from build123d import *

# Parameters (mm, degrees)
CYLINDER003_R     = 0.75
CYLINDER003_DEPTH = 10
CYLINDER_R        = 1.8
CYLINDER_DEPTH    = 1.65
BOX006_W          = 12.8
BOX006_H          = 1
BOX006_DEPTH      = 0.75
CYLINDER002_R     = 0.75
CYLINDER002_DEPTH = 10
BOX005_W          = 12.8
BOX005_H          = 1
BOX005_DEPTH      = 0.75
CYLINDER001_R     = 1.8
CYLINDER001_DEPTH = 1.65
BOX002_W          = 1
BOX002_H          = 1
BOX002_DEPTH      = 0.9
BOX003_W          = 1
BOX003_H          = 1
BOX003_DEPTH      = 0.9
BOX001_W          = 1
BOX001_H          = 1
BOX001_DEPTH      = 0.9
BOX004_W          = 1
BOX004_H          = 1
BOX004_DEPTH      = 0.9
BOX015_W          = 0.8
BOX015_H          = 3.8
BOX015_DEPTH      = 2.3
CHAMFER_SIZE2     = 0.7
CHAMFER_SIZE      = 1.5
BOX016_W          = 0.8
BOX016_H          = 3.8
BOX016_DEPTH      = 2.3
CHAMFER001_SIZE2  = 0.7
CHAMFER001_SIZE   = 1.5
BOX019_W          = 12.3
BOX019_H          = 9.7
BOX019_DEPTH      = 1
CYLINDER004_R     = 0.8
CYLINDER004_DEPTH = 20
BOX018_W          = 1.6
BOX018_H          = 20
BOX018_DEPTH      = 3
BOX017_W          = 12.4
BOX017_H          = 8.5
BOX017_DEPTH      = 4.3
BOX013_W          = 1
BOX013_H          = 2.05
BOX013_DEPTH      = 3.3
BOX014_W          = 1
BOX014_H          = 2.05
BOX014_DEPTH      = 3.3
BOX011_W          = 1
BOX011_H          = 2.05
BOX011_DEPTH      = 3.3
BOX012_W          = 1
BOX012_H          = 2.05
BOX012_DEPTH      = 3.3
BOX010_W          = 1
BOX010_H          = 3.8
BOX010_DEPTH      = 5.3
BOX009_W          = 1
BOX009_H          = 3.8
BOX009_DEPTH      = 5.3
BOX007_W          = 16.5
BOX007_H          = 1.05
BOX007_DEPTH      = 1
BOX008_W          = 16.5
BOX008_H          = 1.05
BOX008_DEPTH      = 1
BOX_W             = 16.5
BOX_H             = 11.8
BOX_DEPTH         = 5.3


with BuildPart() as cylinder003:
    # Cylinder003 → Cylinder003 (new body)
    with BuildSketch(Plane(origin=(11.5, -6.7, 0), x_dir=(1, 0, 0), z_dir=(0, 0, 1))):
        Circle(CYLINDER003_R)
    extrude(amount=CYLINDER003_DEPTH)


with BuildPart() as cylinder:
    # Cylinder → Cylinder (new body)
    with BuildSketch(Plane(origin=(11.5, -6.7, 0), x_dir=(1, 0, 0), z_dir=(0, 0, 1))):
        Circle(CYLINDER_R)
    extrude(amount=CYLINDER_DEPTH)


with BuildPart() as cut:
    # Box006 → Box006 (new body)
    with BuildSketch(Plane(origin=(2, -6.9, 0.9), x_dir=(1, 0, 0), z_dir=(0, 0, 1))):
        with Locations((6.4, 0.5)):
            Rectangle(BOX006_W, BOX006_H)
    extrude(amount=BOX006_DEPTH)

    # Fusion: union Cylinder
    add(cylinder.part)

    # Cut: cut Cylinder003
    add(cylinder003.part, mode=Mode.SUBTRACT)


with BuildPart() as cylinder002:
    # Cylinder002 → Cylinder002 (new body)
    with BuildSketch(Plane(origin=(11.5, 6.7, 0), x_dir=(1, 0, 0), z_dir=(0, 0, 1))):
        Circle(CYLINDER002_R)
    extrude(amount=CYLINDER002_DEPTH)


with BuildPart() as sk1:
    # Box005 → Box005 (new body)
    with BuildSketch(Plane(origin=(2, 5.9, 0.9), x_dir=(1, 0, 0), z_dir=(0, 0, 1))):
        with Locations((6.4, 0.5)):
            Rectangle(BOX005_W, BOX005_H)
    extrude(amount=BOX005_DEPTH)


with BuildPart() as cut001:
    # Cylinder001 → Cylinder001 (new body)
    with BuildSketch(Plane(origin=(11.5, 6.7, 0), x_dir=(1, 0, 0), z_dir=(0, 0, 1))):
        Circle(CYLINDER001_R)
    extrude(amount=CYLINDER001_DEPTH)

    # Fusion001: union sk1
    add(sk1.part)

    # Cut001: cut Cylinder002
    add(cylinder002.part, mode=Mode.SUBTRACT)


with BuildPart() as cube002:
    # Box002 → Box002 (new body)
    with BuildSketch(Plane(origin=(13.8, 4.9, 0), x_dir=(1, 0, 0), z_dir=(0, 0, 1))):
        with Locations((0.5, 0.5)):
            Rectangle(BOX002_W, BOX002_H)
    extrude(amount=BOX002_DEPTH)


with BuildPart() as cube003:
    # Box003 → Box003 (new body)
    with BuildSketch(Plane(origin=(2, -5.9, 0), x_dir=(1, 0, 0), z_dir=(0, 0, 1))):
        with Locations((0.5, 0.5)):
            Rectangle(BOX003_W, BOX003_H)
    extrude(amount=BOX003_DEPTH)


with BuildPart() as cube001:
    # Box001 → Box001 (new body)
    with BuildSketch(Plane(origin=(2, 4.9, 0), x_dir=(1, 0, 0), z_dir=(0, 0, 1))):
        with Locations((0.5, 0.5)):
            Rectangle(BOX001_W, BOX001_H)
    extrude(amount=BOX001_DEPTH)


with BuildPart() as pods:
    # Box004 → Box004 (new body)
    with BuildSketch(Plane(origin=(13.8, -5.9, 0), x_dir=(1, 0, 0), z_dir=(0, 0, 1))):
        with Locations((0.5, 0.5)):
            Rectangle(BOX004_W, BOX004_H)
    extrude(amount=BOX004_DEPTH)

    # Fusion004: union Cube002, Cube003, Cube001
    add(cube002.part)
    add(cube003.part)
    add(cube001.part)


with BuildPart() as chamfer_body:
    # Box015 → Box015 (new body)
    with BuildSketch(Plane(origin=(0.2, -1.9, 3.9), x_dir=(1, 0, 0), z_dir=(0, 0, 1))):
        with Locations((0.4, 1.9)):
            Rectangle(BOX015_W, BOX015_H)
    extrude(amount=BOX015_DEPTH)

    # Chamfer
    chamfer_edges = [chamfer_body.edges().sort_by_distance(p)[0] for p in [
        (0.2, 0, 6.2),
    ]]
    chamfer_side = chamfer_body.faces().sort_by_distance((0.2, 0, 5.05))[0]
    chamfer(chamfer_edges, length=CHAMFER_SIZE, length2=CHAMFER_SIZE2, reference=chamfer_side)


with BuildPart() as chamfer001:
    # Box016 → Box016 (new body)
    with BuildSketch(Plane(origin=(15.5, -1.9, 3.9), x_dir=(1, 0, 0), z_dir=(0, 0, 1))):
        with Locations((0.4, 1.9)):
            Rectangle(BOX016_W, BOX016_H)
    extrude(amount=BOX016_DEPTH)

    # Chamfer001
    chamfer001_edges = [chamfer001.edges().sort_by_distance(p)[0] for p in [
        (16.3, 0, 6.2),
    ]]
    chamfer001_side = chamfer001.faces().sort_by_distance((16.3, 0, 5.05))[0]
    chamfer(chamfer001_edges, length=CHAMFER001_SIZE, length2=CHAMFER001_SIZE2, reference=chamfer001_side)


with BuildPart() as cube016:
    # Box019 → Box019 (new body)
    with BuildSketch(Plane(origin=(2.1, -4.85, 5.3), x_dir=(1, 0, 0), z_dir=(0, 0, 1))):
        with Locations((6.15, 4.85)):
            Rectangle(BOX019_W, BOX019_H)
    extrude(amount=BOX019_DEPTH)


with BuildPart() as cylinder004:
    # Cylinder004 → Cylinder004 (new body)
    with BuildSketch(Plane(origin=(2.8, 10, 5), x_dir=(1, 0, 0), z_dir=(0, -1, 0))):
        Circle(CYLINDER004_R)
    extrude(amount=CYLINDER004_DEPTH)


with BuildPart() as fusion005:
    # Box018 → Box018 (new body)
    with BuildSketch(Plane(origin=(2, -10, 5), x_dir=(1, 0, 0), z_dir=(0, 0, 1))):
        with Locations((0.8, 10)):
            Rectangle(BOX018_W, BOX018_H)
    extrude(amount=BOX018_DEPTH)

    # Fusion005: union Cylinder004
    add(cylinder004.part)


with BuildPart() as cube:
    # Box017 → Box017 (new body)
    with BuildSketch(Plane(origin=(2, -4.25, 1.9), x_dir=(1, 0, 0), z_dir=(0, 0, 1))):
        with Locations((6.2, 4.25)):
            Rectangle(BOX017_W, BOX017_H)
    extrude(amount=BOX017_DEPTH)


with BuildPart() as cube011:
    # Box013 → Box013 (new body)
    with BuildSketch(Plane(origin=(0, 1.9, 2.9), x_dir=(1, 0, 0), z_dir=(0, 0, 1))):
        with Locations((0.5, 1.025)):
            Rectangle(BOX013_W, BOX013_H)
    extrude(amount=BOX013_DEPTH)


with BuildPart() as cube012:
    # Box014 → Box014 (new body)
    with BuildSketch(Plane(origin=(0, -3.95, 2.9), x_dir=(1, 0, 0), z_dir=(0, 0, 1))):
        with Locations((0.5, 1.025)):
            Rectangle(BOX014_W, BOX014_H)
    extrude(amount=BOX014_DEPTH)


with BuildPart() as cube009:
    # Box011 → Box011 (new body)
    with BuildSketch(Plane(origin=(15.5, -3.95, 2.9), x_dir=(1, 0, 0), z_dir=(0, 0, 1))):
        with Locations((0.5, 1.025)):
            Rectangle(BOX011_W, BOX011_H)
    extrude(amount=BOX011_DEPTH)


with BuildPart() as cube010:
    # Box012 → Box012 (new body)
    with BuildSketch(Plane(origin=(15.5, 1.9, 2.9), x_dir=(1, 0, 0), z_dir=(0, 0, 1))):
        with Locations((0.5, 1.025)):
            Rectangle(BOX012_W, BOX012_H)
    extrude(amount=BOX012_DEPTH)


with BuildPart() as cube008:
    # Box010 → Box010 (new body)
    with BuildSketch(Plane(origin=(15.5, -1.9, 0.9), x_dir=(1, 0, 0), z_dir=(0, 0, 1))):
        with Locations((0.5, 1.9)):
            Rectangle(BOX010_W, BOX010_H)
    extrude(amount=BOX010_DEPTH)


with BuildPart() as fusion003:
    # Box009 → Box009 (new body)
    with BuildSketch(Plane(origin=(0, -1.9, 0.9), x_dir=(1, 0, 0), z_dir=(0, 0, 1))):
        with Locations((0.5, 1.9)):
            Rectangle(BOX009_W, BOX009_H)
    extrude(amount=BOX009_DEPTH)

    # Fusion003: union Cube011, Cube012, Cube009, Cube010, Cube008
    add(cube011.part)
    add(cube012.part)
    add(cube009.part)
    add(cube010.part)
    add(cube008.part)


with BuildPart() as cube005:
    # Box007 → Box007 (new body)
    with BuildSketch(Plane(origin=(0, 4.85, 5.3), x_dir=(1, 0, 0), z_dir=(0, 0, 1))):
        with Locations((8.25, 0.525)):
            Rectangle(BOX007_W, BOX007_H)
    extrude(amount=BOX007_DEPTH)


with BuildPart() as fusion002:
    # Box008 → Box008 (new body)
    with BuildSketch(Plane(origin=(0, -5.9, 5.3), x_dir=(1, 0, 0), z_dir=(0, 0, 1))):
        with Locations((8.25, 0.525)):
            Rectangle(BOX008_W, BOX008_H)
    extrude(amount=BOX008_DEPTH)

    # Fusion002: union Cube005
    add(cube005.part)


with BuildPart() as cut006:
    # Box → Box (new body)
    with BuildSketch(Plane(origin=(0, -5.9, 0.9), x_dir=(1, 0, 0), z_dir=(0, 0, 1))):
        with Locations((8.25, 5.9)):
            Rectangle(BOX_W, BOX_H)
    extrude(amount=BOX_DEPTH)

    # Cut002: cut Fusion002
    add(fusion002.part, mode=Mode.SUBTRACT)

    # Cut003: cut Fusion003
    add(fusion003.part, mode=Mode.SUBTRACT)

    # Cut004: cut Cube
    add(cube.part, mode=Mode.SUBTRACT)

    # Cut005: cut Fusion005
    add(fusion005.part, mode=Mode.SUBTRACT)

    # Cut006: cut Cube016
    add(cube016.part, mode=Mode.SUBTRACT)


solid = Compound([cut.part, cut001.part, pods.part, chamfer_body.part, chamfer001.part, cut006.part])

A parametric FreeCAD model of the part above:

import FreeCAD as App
import Part
import Sketcher

V = App.Vector
Q = App.Units.Quantity


def edges_at(feature, points):
    """Names of the edges that pass closest to the given points."""
    edges = feature.Shape.Edges
    near = lambda p: min(range(len(edges)), key=lambda i: edges[i].distToShape(Part.Vertex(*p))[0])
    return sorted({f"Edge{near(p) + 1}" for p in points})

doc = App.newDocument("Part")
body = doc.addObject("PartDesign::Body", "Body")

sketch1 = doc.addObject("Sketcher::SketchObject", "Sketch")
body.addObject(sketch1)
sketch1.AttachmentSupport = (doc.XY_Plane, [""])
sketch1.MapMode = "FlatFace"
sketch1.addGeometry(Part.Circle(V(11.5, -6.7, 0), V(0, 0, 1), 0.75), False)
sketch1.addConstraint([
    Sketcher.Constraint("Diameter", 0, Q("1.5 mm")),
    Sketcher.Constraint("DistanceX", -1, 1, 0, 3, Q("11.5 mm")),
    Sketcher.Constraint("DistanceY", 0, 3, -1, 1, Q("6.7 mm")),
])
pad1 = doc.addObject("PartDesign::Pad", "Pad")
body.addObject(pad1)
pad1.Profile = sketch1
pad1.Length = 10
body2 = doc.addObject("PartDesign::Body", "Body001")

sketch2 = doc.addObject("Sketcher::SketchObject", "Sketch001")
body2.addObject(sketch2)
sketch2.AttachmentSupport = (doc.getObject("XY_Plane001"), [""])
sketch2.MapMode = "FlatFace"
sketch2.addGeometry(Part.Circle(V(11.5, -6.7, 0), V(0, 0, 1), 1.8), False)
sketch2.addConstraint([
    Sketcher.Constraint("Diameter", 0, Q("3.6 mm")),
    Sketcher.Constraint("DistanceX", -1, 1, 0, 3, Q("11.5 mm")),
    Sketcher.Constraint("DistanceY", 0, 3, -1, 1, Q("6.7 mm")),
])
pad2 = doc.addObject("PartDesign::Pad", "Pad001")
body2.addObject(pad2)
pad2.Profile = sketch2
pad2.Length = 1.65
body3 = doc.addObject("PartDesign::Body", "Body002")

sketch3 = doc.addObject("Sketcher::SketchObject", "Sketch002")
body3.addObject(sketch3)
sketch3.AttachmentSupport = (doc.getObject("XY_Plane002"), [""])
sketch3.MapMode = "FlatFace"
sketch3.AttachmentOffset = App.Placement(V(0, 0, 0.9), App.Rotation())
sketch3.addGeometry([
    Part.LineSegment(V(2, -5.9, 0), V(2, -6.9, 0)),
    Part.LineSegment(V(2, -6.9, 0), V(14.8, -6.9, 0)),
    Part.LineSegment(V(14.8, -6.9, 0), V(14.8, -5.9, 0)),
    Part.LineSegment(V(14.8, -5.9, 0), V(2, -5.9, 0)),
], False)
sketch3.addConstraint([
    Sketcher.Constraint("Coincident", 0, 2, 1, 1),
    Sketcher.Constraint("Coincident", 1, 2, 2, 1),
    Sketcher.Constraint("Coincident", 2, 2, 3, 1),
    Sketcher.Constraint("Coincident", 3, 2, 0, 1),
    Sketcher.Constraint("Vertical", 0),
    Sketcher.Constraint("Horizontal", 1),
    Sketcher.Constraint("Vertical", 2),
    Sketcher.Constraint("Horizontal", 3),
    Sketcher.Constraint("DistanceY", 0, 2, 0, 1, Q("1 mm")),
    Sketcher.Constraint("DistanceX", 1, 1, 1, 2, Q("12.8 mm")),
    Sketcher.Constraint("DistanceX", -1, 1, 0, 2, Q("2 mm")),
    Sketcher.Constraint("DistanceY", 0, 2, -1, 1, Q("6.9 mm")),
])
pad3 = doc.addObject("PartDesign::Pad", "Pad002")
body3.addObject(pad3)
pad3.Profile = sketch3
pad3.Length = 0.75
doc.recompute()

boolean = doc.addObject("PartDesign::Boolean", "Boolean")
body3.addObject(boolean)
boolean.Type = "Fuse"
boolean.addObjects([body2])
doc.recompute()

boolean2 = doc.addObject("PartDesign::Boolean", "Boolean001")
body3.addObject(boolean2)
boolean2.Type = "Cut"
boolean2.addObjects([body])
body4 = doc.addObject("PartDesign::Body", "Body003")

sketch4 = doc.addObject("Sketcher::SketchObject", "Sketch003")
body4.addObject(sketch4)
sketch4.AttachmentSupport = (doc.getObject("XY_Plane003"), [""])
sketch4.MapMode = "FlatFace"
sketch4.addGeometry(Part.Circle(V(11.5, 6.7, 0), V(0, 0, 1), 0.75), False)
sketch4.addConstraint([
    Sketcher.Constraint("Diameter", 0, Q("1.5 mm")),
    Sketcher.Constraint("DistanceX", -1, 1, 0, 3, Q("11.5 mm")),
    Sketcher.Constraint("DistanceY", -1, 1, 0, 3, Q("6.7 mm")),
])
pad4 = doc.addObject("PartDesign::Pad", "Pad003")
body4.addObject(pad4)
pad4.Profile = sketch4
pad4.Length = 10
body5 = doc.addObject("PartDesign::Body", "Body004")

sketch5 = doc.addObject("Sketcher::SketchObject", "Sketch004")
body5.addObject(sketch5)
sketch5.AttachmentSupport = (doc.getObject("XY_Plane004"), [""])
sketch5.MapMode = "FlatFace"
sketch5.AttachmentOffset = App.Placement(V(0, 0, 0.9), App.Rotation())
sketch5.addGeometry([
    Part.LineSegment(V(2, 6.9, 0), V(2, 5.9, 0)),
    Part.LineSegment(V(2, 5.9, 0), V(14.8, 5.9, 0)),
    Part.LineSegment(V(14.8, 5.9, 0), V(14.8, 6.9, 0)),
    Part.LineSegment(V(14.8, 6.9, 0), V(2, 6.9, 0)),
], False)
sketch5.addConstraint([
    Sketcher.Constraint("Coincident", 0, 2, 1, 1),
    Sketcher.Constraint("Coincident", 1, 2, 2, 1),
    Sketcher.Constraint("Coincident", 2, 2, 3, 1),
    Sketcher.Constraint("Coincident", 3, 2, 0, 1),
    Sketcher.Constraint("Vertical", 0),
    Sketcher.Constraint("Horizontal", 1),
    Sketcher.Constraint("Vertical", 2),
    Sketcher.Constraint("Horizontal", 3),
    Sketcher.Constraint("DistanceY", 0, 2, 0, 1, Q("1 mm")),
    Sketcher.Constraint("DistanceX", 1, 1, 1, 2, Q("12.8 mm")),
    Sketcher.Constraint("DistanceX", -1, 1, 0, 2, Q("2 mm")),
    Sketcher.Constraint("DistanceY", -1, 1, 0, 2, Q("5.9 mm")),
])
pad5 = doc.addObject("PartDesign::Pad", "Pad004")
body5.addObject(pad5)
pad5.Profile = sketch5
pad5.Length = 0.75
body6 = doc.addObject("PartDesign::Body", "Body005")

sketch6 = doc.addObject("Sketcher::SketchObject", "Sketch005")
body6.addObject(sketch6)
sketch6.AttachmentSupport = (doc.getObject("XY_Plane005"), [""])
sketch6.MapMode = "FlatFace"
sketch6.addGeometry(Part.Circle(V(11.5, 6.7, 0), V(0, 0, 1), 1.8), False)
sketch6.addConstraint([
    Sketcher.Constraint("Diameter", 0, Q("3.6 mm")),
    Sketcher.Constraint("DistanceX", -1, 1, 0, 3, Q("11.5 mm")),
    Sketcher.Constraint("DistanceY", -1, 1, 0, 3, Q("6.7 mm")),
])
pad6 = doc.addObject("PartDesign::Pad", "Pad005")
body6.addObject(pad6)
pad6.Profile = sketch6
pad6.Length = 1.65
doc.recompute()

boolean3 = doc.addObject("PartDesign::Boolean", "Boolean002")
body6.addObject(boolean3)
boolean3.Type = "Fuse"
boolean3.addObjects([body5])
doc.recompute()

boolean4 = doc.addObject("PartDesign::Boolean", "Boolean003")
body6.addObject(boolean4)
boolean4.Type = "Cut"
boolean4.addObjects([body4])
body7 = doc.addObject("PartDesign::Body", "Body006")

sketch7 = doc.addObject("Sketcher::SketchObject", "Sketch006")
body7.addObject(sketch7)
sketch7.AttachmentSupport = (doc.getObject("XY_Plane006"), [""])
sketch7.MapMode = "FlatFace"
sketch7.addGeometry([
    Part.LineSegment(V(13.8, 5.9, 0), V(13.8, 4.9, 0)),
    Part.LineSegment(V(13.8, 4.9, 0), V(14.8, 4.9, 0)),
    Part.LineSegment(V(14.8, 4.9, 0), V(14.8, 5.9, 0)),
    Part.LineSegment(V(14.8, 5.9, 0), V(13.8, 5.9, 0)),
], False)
sketch7.addConstraint([
    Sketcher.Constraint("Coincident", 0, 2, 1, 1),
    Sketcher.Constraint("Coincident", 1, 2, 2, 1),
    Sketcher.Constraint("Coincident", 2, 2, 3, 1),
    Sketcher.Constraint("Coincident", 3, 2, 0, 1),
    Sketcher.Constraint("Vertical", 0),
    Sketcher.Constraint("Horizontal", 1),
    Sketcher.Constraint("Vertical", 2),
    Sketcher.Constraint("Horizontal", 3),
    Sketcher.Constraint("Equal", 3, 0),
    Sketcher.Constraint("DistanceX", 1, 1, 1, 2, Q("1 mm")),
    Sketcher.Constraint("DistanceX", -1, 1, 0, 2, Q("13.8 mm")),
    Sketcher.Constraint("DistanceY", -1, 1, 0, 2, Q("4.9 mm")),
])
pad7 = doc.addObject("PartDesign::Pad", "Pad006")
body7.addObject(pad7)
pad7.Profile = sketch7
pad7.Length = 0.9
body8 = doc.addObject("PartDesign::Body", "Body007")

sketch8 = doc.addObject("Sketcher::SketchObject", "Sketch007")
body8.addObject(sketch8)
sketch8.AttachmentSupport = (doc.getObject("XY_Plane007"), [""])
sketch8.MapMode = "FlatFace"
sketch8.addGeometry([
    Part.LineSegment(V(2, -4.9, 0), V(2, -5.9, 0)),
    Part.LineSegment(V(2, -5.9, 0), V(3, -5.9, 0)),
    Part.LineSegment(V(3, -5.9, 0), V(3, -4.9, 0)),
    Part.LineSegment(V(3, -4.9, 0), V(2, -4.9, 0)),
], False)
sketch8.addConstraint([
    Sketcher.Constraint("Coincident", 0, 2, 1, 1),
    Sketcher.Constraint("Coincident", 1, 2, 2, 1),
    Sketcher.Constraint("Coincident", 2, 2, 3, 1),
    Sketcher.Constraint("Coincident", 3, 2, 0, 1),
    Sketcher.Constraint("Vertical", 0),
    Sketcher.Constraint("Horizontal", 1),
    Sketcher.Constraint("Vertical", 2),
    Sketcher.Constraint("Horizontal", 3),
    Sketcher.Constraint("Equal", 3, 0),
    Sketcher.Constraint("DistanceX", 1, 1, 1, 2, Q("1 mm")),
    Sketcher.Constraint("DistanceX", -1, 1, 0, 2, Q("2 mm")),
    Sketcher.Constraint("DistanceY", 0, 2, -1, 1, Q("5.9 mm")),
])
pad8 = doc.addObject("PartDesign::Pad", "Pad007")
body8.addObject(pad8)
pad8.Profile = sketch8
pad8.Length = 0.9
body9 = doc.addObject("PartDesign::Body", "Body008")

sketch9 = doc.addObject("Sketcher::SketchObject", "Sketch008")
body9.addObject(sketch9)
sketch9.AttachmentSupport = (doc.getObject("XY_Plane008"), [""])
sketch9.MapMode = "FlatFace"
sketch9.addGeometry([
    Part.LineSegment(V(2, 5.9, 0), V(2, 4.9, 0)),
    Part.LineSegment(V(2, 4.9, 0), V(3, 4.9, 0)),
    Part.LineSegment(V(3, 4.9, 0), V(3, 5.9, 0)),
    Part.LineSegment(V(3, 5.9, 0), V(2, 5.9, 0)),
], False)
sketch9.addConstraint([
    Sketcher.Constraint("Coincident", 0, 2, 1, 1),
    Sketcher.Constraint("Coincident", 1, 2, 2, 1),
    Sketcher.Constraint("Coincident", 2, 2, 3, 1),
    Sketcher.Constraint("Coincident", 3, 2, 0, 1),
    Sketcher.Constraint("Vertical", 0),
    Sketcher.Constraint("Horizontal", 1),
    Sketcher.Constraint("Vertical", 2),
    Sketcher.Constraint("Horizontal", 3),
    Sketcher.Constraint("Equal", 3, 0),
    Sketcher.Constraint("DistanceX", 1, 1, 1, 2, Q("1 mm")),
    Sketcher.Constraint("DistanceX", -1, 1, 0, 2, Q("2 mm")),
    Sketcher.Constraint("DistanceY", -1, 1, 0, 2, Q("4.9 mm")),
])
pad9 = doc.addObject("PartDesign::Pad", "Pad008")
body9.addObject(pad9)
pad9.Profile = sketch9
pad9.Length = 0.9
body10 = doc.addObject("PartDesign::Body", "Body009")
body10.AllowCompound = True

sketch10 = doc.addObject("Sketcher::SketchObject", "Sketch009")
body10.addObject(sketch10)
sketch10.AttachmentSupport = (doc.getObject("XY_Plane009"), [""])
sketch10.MapMode = "FlatFace"
sketch10.addGeometry([
    Part.LineSegment(V(13.8, -4.9, 0), V(13.8, -5.9, 0)),
    Part.LineSegment(V(13.8, -5.9, 0), V(14.8, -5.9, 0)),
    Part.LineSegment(V(14.8, -5.9, 0), V(14.8, -4.9, 0)),
    Part.LineSegment(V(14.8, -4.9, 0), V(13.8, -4.9, 0)),
], False)
sketch10.addConstraint([
    Sketcher.Constraint("Coincident", 0, 2, 1, 1),
    Sketcher.Constraint("Coincident", 1, 2, 2, 1),
    Sketcher.Constraint("Coincident", 2, 2, 3, 1),
    Sketcher.Constraint("Coincident", 3, 2, 0, 1),
    Sketcher.Constraint("Vertical", 0),
    Sketcher.Constraint("Horizontal", 1),
    Sketcher.Constraint("Vertical", 2),
    Sketcher.Constraint("Horizontal", 3),
    Sketcher.Constraint("Equal", 3, 0),
    Sketcher.Constraint("DistanceX", 1, 1, 1, 2, Q("1 mm")),
    Sketcher.Constraint("DistanceX", -1, 1, 0, 2, Q("13.8 mm")),
    Sketcher.Constraint("DistanceY", 0, 2, -1, 1, Q("5.9 mm")),
])
pad10 = doc.addObject("PartDesign::Pad", "Pad009")
body10.addObject(pad10)
pad10.Profile = sketch10
pad10.Length = 0.9
doc.recompute()

boolean5 = doc.addObject("PartDesign::Boolean", "Boolean004")
body10.addObject(boolean5)
boolean5.Type = "Fuse"
boolean5.addObjects([body7])
doc.recompute()

boolean6 = doc.addObject("PartDesign::Boolean", "Boolean005")
body10.addObject(boolean6)
boolean6.Type = "Fuse"
boolean6.addObjects([body8])
doc.recompute()

boolean7 = doc.addObject("PartDesign::Boolean", "Boolean006")
body10.addObject(boolean7)
boolean7.Type = "Fuse"
boolean7.addObjects([body9])
body11 = doc.addObject("PartDesign::Body", "Body010")

sketch11 = doc.addObject("Sketcher::SketchObject", "Sketch010")
body11.addObject(sketch11)
sketch11.AttachmentSupport = (doc.getObject("XY_Plane010"), [""])
sketch11.MapMode = "FlatFace"
sketch11.AttachmentOffset = App.Placement(V(0, 0, 3.9), App.Rotation())
sketch11.addGeometry([
    Part.LineSegment(V(0.2, 1.9, 0), V(0.2, -1.9, 0)),
    Part.LineSegment(V(0.2, -1.9, 0), V(1, -1.9, 0)),
    Part.LineSegment(V(1, -1.9, 0), V(1, 1.9, 0)),
    Part.LineSegment(V(1, 1.9, 0), V(0.2, 1.9, 0)),
], False)
sketch11.addConstraint([
    Sketcher.Constraint("Coincident", 0, 2, 1, 1),
    Sketcher.Constraint("Coincident", 1, 2, 2, 1),
    Sketcher.Constraint("Coincident", 2, 2, 3, 1),
    Sketcher.Constraint("Coincident", 3, 2, 0, 1),
    Sketcher.Constraint("Vertical", 0),
    Sketcher.Constraint("Horizontal", 1),
    Sketcher.Constraint("Vertical", 2),
    Sketcher.Constraint("Horizontal", 3),
    Sketcher.Constraint("DistanceX", 1, 1, 1, 2, Q("0.8 mm")),
    Sketcher.Constraint("DistanceY", 0, 2, 0, 1, Q("3.8 mm")),
    Sketcher.Constraint("DistanceX", -1, 1, 1, 2, Q("1 mm")),
    Sketcher.Constraint("DistanceY", 0, 2, -1, 1, Q("1.9 mm")),
])
pad11 = doc.addObject("PartDesign::Pad", "Pad010")
body11.addObject(pad11)
pad11.Profile = sketch11
pad11.Length = 2.3
doc.recompute()

chamfer = doc.addObject("PartDesign::Chamfer", "Chamfer")
body11.addObject(chamfer)
chamfer.Base = (pad11, edges_at(pad11, [(0.2, 0, 6.2)]))
chamfer.ChamferType = "Two distances"
chamfer.Size = 1.5
chamfer.Size2 = 0.7
body12 = doc.addObject("PartDesign::Body", "Body011")

sketch12 = doc.addObject("Sketcher::SketchObject", "Sketch011")
body12.addObject(sketch12)
sketch12.AttachmentSupport = (doc.getObject("XY_Plane011"), [""])
sketch12.MapMode = "FlatFace"
sketch12.AttachmentOffset = App.Placement(V(0, 0, 3.9), App.Rotation())
sketch12.addGeometry([
    Part.LineSegment(V(15.5, 1.9, 0), V(15.5, -1.9, 0)),
    Part.LineSegment(V(15.5, -1.9, 0), V(16.3, -1.9, 0)),
    Part.LineSegment(V(16.3, -1.9, 0), V(16.3, 1.9, 0)),
    Part.LineSegment(V(16.3, 1.9, 0), V(15.5, 1.9, 0)),
], False)
sketch12.addConstraint([
    Sketcher.Constraint("Coincident", 0, 2, 1, 1),
    Sketcher.Constraint("Coincident", 1, 2, 2, 1),
    Sketcher.Constraint("Coincident", 2, 2, 3, 1),
    Sketcher.Constraint("Coincident", 3, 2, 0, 1),
    Sketcher.Constraint("Vertical", 0),
    Sketcher.Constraint("Horizontal", 1),
    Sketcher.Constraint("Vertical", 2),
    Sketcher.Constraint("Horizontal", 3),
    Sketcher.Constraint("DistanceX", 1, 1, 1, 2, Q("0.8 mm")),
    Sketcher.Constraint("DistanceY", 0, 2, 0, 1, Q("3.8 mm")),
    Sketcher.Constraint("DistanceX", -1, 1, 0, 2, Q("15.5 mm")),
    Sketcher.Constraint("DistanceY", 0, 2, -1, 1, Q("1.9 mm")),
])
pad12 = doc.addObject("PartDesign::Pad", "Pad011")
body12.addObject(pad12)
pad12.Profile = sketch12
pad12.Length = 2.3
doc.recompute()

chamfer2 = doc.addObject("PartDesign::Chamfer", "Chamfer001")
body12.addObject(chamfer2)
chamfer2.Base = (pad12, edges_at(pad12, [(16.3, 0, 6.2)]))
chamfer2.ChamferType = "Two distances"
chamfer2.Size = 1.5
chamfer2.Size2 = 0.7
body13 = doc.addObject("PartDesign::Body", "Body012")

sketch13 = doc.addObject("Sketcher::SketchObject", "Sketch012")
body13.addObject(sketch13)
sketch13.AttachmentSupport = (doc.getObject("XY_Plane012"), [""])
sketch13.MapMode = "FlatFace"
sketch13.AttachmentOffset = App.Placement(V(0, 0, 5.3), App.Rotation())
sketch13.addGeometry([
    Part.LineSegment(V(2.1, 4.85, 0), V(2.1, -4.85, 0)),
    Part.LineSegment(V(2.1, -4.85, 0), V(14.4, -4.85, 0)),
    Part.LineSegment(V(14.4, -4.85, 0), V(14.4, 4.85, 0)),
    Part.LineSegment(V(14.4, 4.85, 0), V(2.1, 4.85, 0)),
], False)
sketch13.addConstraint([
    Sketcher.Constraint("Coincident", 0, 2, 1, 1),
    Sketcher.Constraint("Coincident", 1, 2, 2, 1),
    Sketcher.Constraint("Coincident", 2, 2, 3, 1),
    Sketcher.Constraint("Coincident", 3, 2, 0, 1),
    Sketcher.Constraint("Vertical", 0),
    Sketcher.Constraint("Horizontal", 1),
    Sketcher.Constraint("Vertical", 2),
    Sketcher.Constraint("Horizontal", 3),
    Sketcher.Constraint("DistanceX", 1, 1, 1, 2, Q("12.3 mm")),
    Sketcher.Constraint("DistanceY", 0, 2, 0, 1, Q("9.7 mm")),
    Sketcher.Constraint("DistanceX", -1, 1, 0, 2, Q("2.1 mm")),
    Sketcher.Constraint("DistanceY", 0, 2, -1, 1, Q("4.85 mm")),
])
pad13 = doc.addObject("PartDesign::Pad", "Pad012")
body13.addObject(pad13)
pad13.Profile = sketch13
pad13.Length = 1
body14 = doc.addObject("PartDesign::Body", "Body013")

sketch14 = doc.addObject("Sketcher::SketchObject", "Sketch013")
body14.addObject(sketch14)
sketch14.AttachmentSupport = (doc.getObject("XZ_Plane013"), [""])
sketch14.MapMode = "FlatFace"
sketch14.AttachmentOffset = App.Placement(V(0, 0, -10), App.Rotation())
sketch14.addGeometry(Part.Circle(V(2.8, 5, 0), V(0, 0, 1), 0.8), False)
sketch14.addConstraint([
    Sketcher.Constraint("Diameter", 0, Q("1.6 mm")),
    Sketcher.Constraint("DistanceY", -1, 1, 0, 3, Q("5 mm")),
    Sketcher.Constraint("DistanceX", -1, 1, 0, 3, Q("2.8 mm")),
])
pad14 = doc.addObject("PartDesign::Pad", "Pad013")
body14.addObject(pad14)
pad14.Profile = sketch14
pad14.Length = 20
body15 = doc.addObject("PartDesign::Body", "Body014")

sketch15 = doc.addObject("Sketcher::SketchObject", "Sketch014")
body15.addObject(sketch15)
sketch15.AttachmentSupport = (doc.getObject("XY_Plane014"), [""])
sketch15.MapMode = "FlatFace"
sketch15.AttachmentOffset = App.Placement(V(0, 0, 5), App.Rotation())
sketch15.addGeometry([
    Part.LineSegment(V(2, 10, 0), V(2, -10, 0)),
    Part.LineSegment(V(2, -10, 0), V(3.6, -10, 0)),
    Part.LineSegment(V(3.6, -10, 0), V(3.6, 10, 0)),
    Part.LineSegment(V(3.6, 10, 0), V(2, 10, 0)),
], False)
sketch15.addConstraint([
    Sketcher.Constraint("Coincident", 0, 2, 1, 1),
    Sketcher.Constraint("Coincident", 1, 2, 2, 1),
    Sketcher.Constraint("Coincident", 2, 2, 3, 1),
    Sketcher.Constraint("Coincident", 3, 2, 0, 1),
    Sketcher.Constraint("Vertical", 0),
    Sketcher.Constraint("Horizontal", 1),
    Sketcher.Constraint("Vertical", 2),
    Sketcher.Constraint("Horizontal", 3),
    Sketcher.Constraint("DistanceY", 0, 2, 0, 1, Q("20 mm")),
    Sketcher.Constraint("DistanceX", 1, 1, 1, 2, Q("1.6 mm")),
    Sketcher.Constraint("DistanceX", -1, 1, 0, 2, Q("2 mm")),
    Sketcher.Constraint("DistanceY", 0, 2, -1, 1, Q("10 mm")),
])
pad15 = doc.addObject("PartDesign::Pad", "Pad014")
body15.addObject(pad15)
pad15.Profile = sketch15
pad15.Length = 3
doc.recompute()

boolean8 = doc.addObject("PartDesign::Boolean", "Boolean007")
body15.addObject(boolean8)
boolean8.Type = "Fuse"
boolean8.addObjects([body14])
body16 = doc.addObject("PartDesign::Body", "Body015")

sketch16 = doc.addObject("Sketcher::SketchObject", "Sketch015")
body16.addObject(sketch16)
sketch16.AttachmentSupport = (doc.getObject("XY_Plane015"), [""])
sketch16.MapMode = "FlatFace"
sketch16.AttachmentOffset = App.Placement(V(0, 0, 1.9), App.Rotation())
sketch16.addGeometry([
    Part.LineSegment(V(2, 4.25, 0), V(2, -4.25, 0)),
    Part.LineSegment(V(2, -4.25, 0), V(14.4, -4.25, 0)),
    Part.LineSegment(V(14.4, -4.25, 0), V(14.4, 4.25, 0)),
    Part.LineSegment(V(14.4, 4.25, 0), V(2, 4.25, 0)),
], False)
sketch16.addConstraint([
    Sketcher.Constraint("Coincident", 0, 2, 1, 1),
    Sketcher.Constraint("Coincident", 1, 2, 2, 1),
    Sketcher.Constraint("Coincident", 2, 2, 3, 1),
    Sketcher.Constraint("Coincident", 3, 2, 0, 1),
    Sketcher.Constraint("Vertical", 0),
    Sketcher.Constraint("Horizontal", 1),
    Sketcher.Constraint("Vertical", 2),
    Sketcher.Constraint("Horizontal", 3),
    Sketcher.Constraint("DistanceX", 1, 1, 1, 2, Q("12.4 mm")),
    Sketcher.Constraint("DistanceY", 0, 2, 0, 1, Q("8.5 mm")),
    Sketcher.Constraint("DistanceX", -1, 1, 0, 2, Q("2 mm")),
    Sketcher.Constraint("DistanceY", 0, 2, -1, 1, Q("4.25 mm")),
])
pad16 = doc.addObject("PartDesign::Pad", "Pad015")
body16.addObject(pad16)
pad16.Profile = sketch16
pad16.Length = 4.3
body17 = doc.addObject("PartDesign::Body", "Body016")

sketch17 = doc.addObject("Sketcher::SketchObject", "Sketch016")
body17.addObject(sketch17)
sketch17.AttachmentSupport = (doc.getObject("XY_Plane016"), [""])
sketch17.MapMode = "FlatFace"
sketch17.AttachmentOffset = App.Placement(V(0, 0, 2.9), App.Rotation())
sketch17.addGeometry([
    Part.LineSegment(V(0, 3.95, 0), V(0, 1.9, 0)),
    Part.LineSegment(V(0, 1.9, 0), V(1, 1.9, 0)),
    Part.LineSegment(V(1, 1.9, 0), V(1, 3.95, 0)),
    Part.LineSegment(V(1, 3.95, 0), V(0, 3.95, 0)),
], False)
sketch17.addConstraint([
    Sketcher.Constraint("Coincident", 0, 2, 1, 1),
    Sketcher.Constraint("Coincident", 1, 2, 2, 1),
    Sketcher.Constraint("Coincident", 2, 2, 3, 1),
    Sketcher.Constraint("Coincident", 3, 2, 0, 1),
    Sketcher.Constraint("Vertical", 0),
    Sketcher.Constraint("Horizontal", 1),
    Sketcher.Constraint("Vertical", 2),
    Sketcher.Constraint("Horizontal", 3),
    Sketcher.Constraint("PointOnObject", 0, 2, -2),
    Sketcher.Constraint("DistanceX", 1, 1, 1, 2, Q("1 mm")),
    Sketcher.Constraint("DistanceY", 0, 2, 0, 1, Q("2.05 mm")),
    Sketcher.Constraint("DistanceY", -1, 1, 0, 2, Q("1.9 mm")),
])
pad17 = doc.addObject("PartDesign::Pad", "Pad016")
body17.addObject(pad17)
pad17.Profile = sketch17
pad17.Length = 3.3
body18 = doc.addObject("PartDesign::Body", "Body017")

sketch18 = doc.addObject("Sketcher::SketchObject", "Sketch017")
body18.addObject(sketch18)
sketch18.AttachmentSupport = (doc.getObject("XY_Plane017"), [""])
sketch18.MapMode = "FlatFace"
sketch18.AttachmentOffset = App.Placement(V(0, 0, 2.9), App.Rotation())
sketch18.addGeometry([
    Part.LineSegment(V(0, -1.9, 0), V(0, -3.95, 0)),
    Part.LineSegment(V(0, -3.95, 0), V(1, -3.95, 0)),
    Part.LineSegment(V(1, -3.95, 0), V(1, -1.9, 0)),
    Part.LineSegment(V(1, -1.9, 0), V(0, -1.9, 0)),
], False)
sketch18.addConstraint([
    Sketcher.Constraint("Coincident", 0, 2, 1, 1),
    Sketcher.Constraint("Coincident", 1, 2, 2, 1),
    Sketcher.Constraint("Coincident", 2, 2, 3, 1),
    Sketcher.Constraint("Coincident", 3, 2, 0, 1),
    Sketcher.Constraint("Vertical", 0),
    Sketcher.Constraint("Horizontal", 1),
    Sketcher.Constraint("Vertical", 2),
    Sketcher.Constraint("Horizontal", 3),
    Sketcher.Constraint("PointOnObject", 0, 2, -2),
    Sketcher.Constraint("DistanceX", 1, 1, 1, 2, Q("1 mm")),
    Sketcher.Constraint("DistanceY", 0, 2, 0, 1, Q("2.05 mm")),
    Sketcher.Constraint("DistanceY", 2, 2, -1, 1, Q("1.9 mm")),
])
pad18 = doc.addObject("PartDesign::Pad", "Pad017")
body18.addObject(pad18)
pad18.Profile = sketch18
pad18.Length = 3.3
body19 = doc.addObject("PartDesign::Body", "Body018")

sketch19 = doc.addObject("Sketcher::SketchObject", "Sketch018")
body19.addObject(sketch19)
sketch19.AttachmentSupport = (doc.getObject("XY_Plane018"), [""])
sketch19.MapMode = "FlatFace"
sketch19.AttachmentOffset = App.Placement(V(0, 0, 2.9), App.Rotation())
sketch19.addGeometry([
    Part.LineSegment(V(15.5, -1.9, 0), V(15.5, -3.95, 0)),
    Part.LineSegment(V(15.5, -3.95, 0), V(16.5, -3.95, 0)),
    Part.LineSegment(V(16.5, -3.95, 0), V(16.5, -1.9, 0)),
    Part.LineSegment(V(16.5, -1.9, 0), V(15.5, -1.9, 0)),
], False)
sketch19.addConstraint([
    Sketcher.Constraint("Coincident", 0, 2, 1, 1),
    Sketcher.Constraint("Coincident", 1, 2, 2, 1),
    Sketcher.Constraint("Coincident", 2, 2, 3, 1),
    Sketcher.Constraint("Coincident", 3, 2, 0, 1),
    Sketcher.Constraint("Vertical", 0),
    Sketcher.Constraint("Horizontal", 1),
    Sketcher.Constraint("Vertical", 2),
    Sketcher.Constraint("Horizontal", 3),
    Sketcher.Constraint("DistanceX", 1, 1, 1, 2, Q("1 mm")),
    Sketcher.Constraint("DistanceY", 0, 2, 0, 1, Q("2.05 mm")),
    Sketcher.Constraint("DistanceX", -1, 1, 0, 2, Q("15.5 mm")),
    Sketcher.Constraint("DistanceY", 2, 2, -1, 1, Q("1.9 mm")),
])
pad19 = doc.addObject("PartDesign::Pad", "Pad018")
body19.addObject(pad19)
pad19.Profile = sketch19
pad19.Length = 3.3
body20 = doc.addObject("PartDesign::Body", "Body019")

sketch20 = doc.addObject("Sketcher::SketchObject", "Sketch019")
body20.addObject(sketch20)
sketch20.AttachmentSupport = (doc.getObject("XY_Plane019"), [""])
sketch20.MapMode = "FlatFace"
sketch20.AttachmentOffset = App.Placement(V(0, 0, 2.9), App.Rotation())
sketch20.addGeometry([
    Part.LineSegment(V(15.5, 3.95, 0), V(15.5, 1.9, 0)),
    Part.LineSegment(V(15.5, 1.9, 0), V(16.5, 1.9, 0)),
    Part.LineSegment(V(16.5, 1.9, 0), V(16.5, 3.95, 0)),
    Part.LineSegment(V(16.5, 3.95, 0), V(15.5, 3.95, 0)),
], False)
sketch20.addConstraint([
    Sketcher.Constraint("Coincident", 0, 2, 1, 1),
    Sketcher.Constraint("Coincident", 1, 2, 2, 1),
    Sketcher.Constraint("Coincident", 2, 2, 3, 1),
    Sketcher.Constraint("Coincident", 3, 2, 0, 1),
    Sketcher.Constraint("Vertical", 0),
    Sketcher.Constraint("Horizontal", 1),
    Sketcher.Constraint("Vertical", 2),
    Sketcher.Constraint("Horizontal", 3),
    Sketcher.Constraint("DistanceX", 1, 1, 1, 2, Q("1 mm")),
    Sketcher.Constraint("DistanceY", 0, 2, 0, 1, Q("2.05 mm")),
    Sketcher.Constraint("DistanceX", -1, 1, 0, 2, Q("15.5 mm")),
    Sketcher.Constraint("DistanceY", -1, 1, 0, 2, Q("1.9 mm")),
])
pad20 = doc.addObject("PartDesign::Pad", "Pad019")
body20.addObject(pad20)
pad20.Profile = sketch20
pad20.Length = 3.3
body21 = doc.addObject("PartDesign::Body", "Body020")

sketch21 = doc.addObject("Sketcher::SketchObject", "Sketch020")
body21.addObject(sketch21)
sketch21.AttachmentSupport = (doc.getObject("XY_Plane020"), [""])
sketch21.MapMode = "FlatFace"
sketch21.AttachmentOffset = App.Placement(V(0, 0, 0.9), App.Rotation())
sketch21.addGeometry([
    Part.LineSegment(V(15.5, 1.9, 0), V(15.5, -1.9, 0)),
    Part.LineSegment(V(15.5, -1.9, 0), V(16.5, -1.9, 0)),
    Part.LineSegment(V(16.5, -1.9, 0), V(16.5, 1.9, 0)),
    Part.LineSegment(V(16.5, 1.9, 0), V(15.5, 1.9, 0)),
], False)
sketch21.addConstraint([
    Sketcher.Constraint("Coincident", 0, 2, 1, 1),
    Sketcher.Constraint("Coincident", 1, 2, 2, 1),
    Sketcher.Constraint("Coincident", 2, 2, 3, 1),
    Sketcher.Constraint("Coincident", 3, 2, 0, 1),
    Sketcher.Constraint("Vertical", 0),
    Sketcher.Constraint("Horizontal", 1),
    Sketcher.Constraint("Vertical", 2),
    Sketcher.Constraint("Horizontal", 3),
    Sketcher.Constraint("DistanceX", 1, 1, 1, 2, Q("1 mm")),
    Sketcher.Constraint("DistanceY", 0, 2, 0, 1, Q("3.8 mm")),
    Sketcher.Constraint("DistanceX", -1, 1, 0, 2, Q("15.5 mm")),
    Sketcher.Constraint("DistanceY", 0, 2, -1, 1, Q("1.9 mm")),
])
pad21 = doc.addObject("PartDesign::Pad", "Pad020")
body21.addObject(pad21)
pad21.Profile = sketch21
pad21.Length = 5.3
body22 = doc.addObject("PartDesign::Body", "Body021")
body22.AllowCompound = True

sketch22 = doc.addObject("Sketcher::SketchObject", "Sketch021")
body22.addObject(sketch22)
sketch22.AttachmentSupport = (doc.getObject("XY_Plane021"), [""])
sketch22.MapMode = "FlatFace"
sketch22.AttachmentOffset = App.Placement(V(0, 0, 0.9), App.Rotation())
sketch22.addGeometry([
    Part.LineSegment(V(0, 1.9, 0), V(0, -1.9, 0)),
    Part.LineSegment(V(0, -1.9, 0), V(1, -1.9, 0)),
    Part.LineSegment(V(1, -1.9, 0), V(1, 1.9, 0)),
    Part.LineSegment(V(1, 1.9, 0), V(0, 1.9, 0)),
], False)
sketch22.addConstraint([
    Sketcher.Constraint("Coincident", 0, 2, 1, 1),
    Sketcher.Constraint("Coincident", 1, 2, 2, 1),
    Sketcher.Constraint("Coincident", 2, 2, 3, 1),
    Sketcher.Constraint("Coincident", 3, 2, 0, 1),
    Sketcher.Constraint("Vertical", 0),
    Sketcher.Constraint("Horizontal", 1),
    Sketcher.Constraint("Vertical", 2),
    Sketcher.Constraint("Horizontal", 3),
    Sketcher.Constraint("Symmetric", 0, 2, 3, 2, -1, 1),
    Sketcher.Constraint("DistanceX", 1, 1, 1, 2, Q("1 mm")),
    Sketcher.Constraint("DistanceY", 0, 2, 0, 1, Q("3.8 mm")),
])
pad22 = doc.addObject("PartDesign::Pad", "Pad021")
body22.addObject(pad22)
pad22.Profile = sketch22
pad22.Length = 5.3
doc.recompute()

boolean9 = doc.addObject("PartDesign::Boolean", "Boolean008")
body22.addObject(boolean9)
boolean9.Type = "Fuse"
boolean9.addObjects([body17])
doc.recompute()

boolean10 = doc.addObject("PartDesign::Boolean", "Boolean009")
body22.addObject(boolean10)
boolean10.Type = "Fuse"
boolean10.addObjects([body18])
doc.recompute()

boolean11 = doc.addObject("PartDesign::Boolean", "Boolean010")
body22.addObject(boolean11)
boolean11.Type = "Fuse"
boolean11.addObjects([body19])
doc.recompute()

boolean12 = doc.addObject("PartDesign::Boolean", "Boolean011")
body22.addObject(boolean12)
boolean12.Type = "Fuse"
boolean12.addObjects([body20])
doc.recompute()

boolean13 = doc.addObject("PartDesign::Boolean", "Boolean012")
body22.addObject(boolean13)
boolean13.Type = "Fuse"
boolean13.addObjects([body21])
body23 = doc.addObject("PartDesign::Body", "Body022")

sketch23 = doc.addObject("Sketcher::SketchObject", "Sketch022")
body23.addObject(sketch23)
sketch23.AttachmentSupport = (doc.getObject("XY_Plane022"), [""])
sketch23.MapMode = "FlatFace"
sketch23.AttachmentOffset = App.Placement(V(0, 0, 5.3), App.Rotation())
sketch23.addGeometry([
    Part.LineSegment(V(0, 5.9, 0), V(0, 4.85, 0)),
    Part.LineSegment(V(0, 4.85, 0), V(16.5, 4.85, 0)),
    Part.LineSegment(V(16.5, 4.85, 0), V(16.5, 5.9, 0)),
    Part.LineSegment(V(16.5, 5.9, 0), V(0, 5.9, 0)),
], False)
sketch23.addConstraint([
    Sketcher.Constraint("Coincident", 0, 2, 1, 1),
    Sketcher.Constraint("Coincident", 1, 2, 2, 1),
    Sketcher.Constraint("Coincident", 2, 2, 3, 1),
    Sketcher.Constraint("Coincident", 3, 2, 0, 1),
    Sketcher.Constraint("Vertical", 0),
    Sketcher.Constraint("Horizontal", 1),
    Sketcher.Constraint("Vertical", 2),
    Sketcher.Constraint("Horizontal", 3),
    Sketcher.Constraint("PointOnObject", 0, 2, -2),
    Sketcher.Constraint("DistanceX", 1, 1, 1, 2, Q("16.5 mm")),
    Sketcher.Constraint("DistanceY", 0, 2, 0, 1, Q("1.05 mm")),
    Sketcher.Constraint("DistanceY", -1, 1, 2, 2, Q("5.9 mm")),
])
pad23 = doc.addObject("PartDesign::Pad", "Pad022")
body23.addObject(pad23)
pad23.Profile = sketch23
pad23.Length = 1
body24 = doc.addObject("PartDesign::Body", "Body023")
body24.AllowCompound = True

sketch24 = doc.addObject("Sketcher::SketchObject", "Sketch023")
body24.addObject(sketch24)
sketch24.AttachmentSupport = (doc.getObject("XY_Plane023"), [""])
sketch24.MapMode = "FlatFace"
sketch24.AttachmentOffset = App.Placement(V(0, 0, 5.3), App.Rotation())
sketch24.addGeometry([
    Part.LineSegment(V(0, -4.85, 0), V(0, -5.9, 0)),
    Part.LineSegment(V(0, -5.9, 0), V(16.5, -5.9, 0)),
    Part.LineSegment(V(16.5, -5.9, 0), V(16.5, -4.85, 0)),
    Part.LineSegment(V(16.5, -4.85, 0), V(0, -4.85, 0)),
], False)
sketch24.addConstraint([
    Sketcher.Constraint("Coincident", 0, 2, 1, 1),
    Sketcher.Constraint("Coincident", 1, 2, 2, 1),
    Sketcher.Constraint("Coincident", 2, 2, 3, 1),
    Sketcher.Constraint("Coincident", 3, 2, 0, 1),
    Sketcher.Constraint("Vertical", 0),
    Sketcher.Constraint("Horizontal", 1),
    Sketcher.Constraint("Vertical", 2),
    Sketcher.Constraint("Horizontal", 3),
    Sketcher.Constraint("PointOnObject", 0, 2, -2),
    Sketcher.Constraint("DistanceX", 1, 1, 1, 2, Q("16.5 mm")),
    Sketcher.Constraint("DistanceY", 0, 2, 0, 1, Q("1.05 mm")),
    Sketcher.Constraint("DistanceY", 0, 2, -1, 1, Q("5.9 mm")),
])
pad24 = doc.addObject("PartDesign::Pad", "Pad023")
body24.addObject(pad24)
pad24.Profile = sketch24
pad24.Length = 1
doc.recompute()

boolean14 = doc.addObject("PartDesign::Boolean", "Boolean013")
body24.addObject(boolean14)
boolean14.Type = "Fuse"
boolean14.addObjects([body23])
body25 = doc.addObject("PartDesign::Body", "Body024")

sketch25 = doc.addObject("Sketcher::SketchObject", "Sketch024")
body25.addObject(sketch25)
sketch25.AttachmentSupport = (doc.getObject("XY_Plane024"), [""])
sketch25.MapMode = "FlatFace"
sketch25.AttachmentOffset = App.Placement(V(0, 0, 0.9), App.Rotation())
sketch25.addGeometry([
    Part.LineSegment(V(0, 5.9, 0), V(0, -5.9, 0)),
    Part.LineSegment(V(0, -5.9, 0), V(16.5, -5.9, 0)),
    Part.LineSegment(V(16.5, -5.9, 0), V(16.5, 5.9, 0)),
    Part.LineSegment(V(16.5, 5.9, 0), V(0, 5.9, 0)),
], False)
sketch25.addConstraint([
    Sketcher.Constraint("Coincident", 0, 2, 1, 1),
    Sketcher.Constraint("Coincident", 1, 2, 2, 1),
    Sketcher.Constraint("Coincident", 2, 2, 3, 1),
    Sketcher.Constraint("Coincident", 3, 2, 0, 1),
    Sketcher.Constraint("Vertical", 0),
    Sketcher.Constraint("Horizontal", 1),
    Sketcher.Constraint("Vertical", 2),
    Sketcher.Constraint("Horizontal", 3),
    Sketcher.Constraint("Symmetric", 0, 2, 3, 2, -1, 1),
    Sketcher.Constraint("DistanceX", 1, 1, 1, 2, Q("16.5 mm")),
    Sketcher.Constraint("DistanceY", 0, 2, 0, 1, Q("11.8 mm")),
])
pad25 = doc.addObject("PartDesign::Pad", "Pad024")
body25.addObject(pad25)
pad25.Profile = sketch25
pad25.Length = 5.3
doc.recompute()

boolean15 = doc.addObject("PartDesign::Boolean", "Boolean014")
body25.addObject(boolean15)
boolean15.Type = "Cut"
boolean15.addObjects([body24])
doc.recompute()

boolean16 = doc.addObject("PartDesign::Boolean", "Boolean015")
body25.addObject(boolean16)
boolean16.Type = "Cut"
boolean16.addObjects([body22])
doc.recompute()

boolean17 = doc.addObject("PartDesign::Boolean", "Boolean016")
body25.addObject(boolean17)
boolean17.Type = "Cut"
boolean17.addObjects([body16])
doc.recompute()

boolean18 = doc.addObject("PartDesign::Boolean", "Boolean017")
body25.addObject(boolean18)
boolean18.Type = "Cut"
boolean18.addObjects([body15])
doc.recompute()

boolean19 = doc.addObject("PartDesign::Boolean", "Boolean018")
body25.addObject(boolean19)
boolean19.Type = "Cut"
boolean19.addObjects([body13])

doc.recompute()
